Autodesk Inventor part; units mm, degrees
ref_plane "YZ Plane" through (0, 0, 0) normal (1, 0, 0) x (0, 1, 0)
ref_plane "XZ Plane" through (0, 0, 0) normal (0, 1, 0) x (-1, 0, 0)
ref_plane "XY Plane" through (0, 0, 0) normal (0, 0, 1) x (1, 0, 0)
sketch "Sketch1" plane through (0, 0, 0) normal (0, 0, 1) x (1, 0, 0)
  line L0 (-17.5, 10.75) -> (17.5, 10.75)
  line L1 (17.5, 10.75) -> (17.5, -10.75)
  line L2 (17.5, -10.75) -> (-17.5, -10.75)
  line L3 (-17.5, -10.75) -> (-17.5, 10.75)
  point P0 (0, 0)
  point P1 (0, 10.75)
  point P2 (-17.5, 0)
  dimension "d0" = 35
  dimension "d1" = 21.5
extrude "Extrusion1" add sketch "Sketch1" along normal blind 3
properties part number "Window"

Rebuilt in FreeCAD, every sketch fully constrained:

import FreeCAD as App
import Part
import Sketcher
Q = App.Units.Quantity

doc = App.newDocument("Part")
body = doc.addObject("PartDesign::Body", "Body")

sketch1 = doc.addObject("Sketcher::SketchObject", "Sketch")
body.addObject(sketch1)
sketch1.AttachmentSupport = (doc.XY_Plane, [""])
sketch1.MapMode = "FlatFace"
sketch1.addGeometry(Part.LineSegment(App.Vector(18, 11, 0), App.Vector(-18, 11, 0)), False)
sketch1.addGeometry(Part.LineSegment(App.Vector(-18, 11, 0), App.Vector(-18, -11, 0)), False)
sketch1.addGeometry(Part.LineSegment(App.Vector(-18, -11, 0), App.Vector(18, -11, 0)), False)
sketch1.addGeometry(Part.LineSegment(App.Vector(18, -11, 0), App.Vector(18, 11, 0)), False)
sketch1.addConstraint(Sketcher.Constraint("Coincident", 0, 2, 1, 1))
sketch1.addConstraint(Sketcher.Constraint("Coincident", 1, 2, 2, 1))
sketch1.addConstraint(Sketcher.Constraint("Coincident", 2, 2, 3, 1))
sketch1.addConstraint(Sketcher.Constraint("Coincident", 3, 2, 0, 1))
sketch1.addConstraint(Sketcher.Constraint("Horizontal", 0))
sketch1.addConstraint(Sketcher.Constraint("Vertical", 1))
sketch1.addConstraint(Sketcher.Constraint("Horizontal", 2))
sketch1.addConstraint(Sketcher.Constraint("Vertical", 3))
sketch1.addConstraint(Sketcher.Constraint("Symmetric", 0, 2, 2, 2, -1, 1))
sketch1.addConstraint(Sketcher.Constraint("DistanceX", 0, 2, 0, 1, Q("35 mm")))
sketch1.addConstraint(Sketcher.Constraint("DistanceY", 1, 2, 1, 1, Q("21.5 mm")))
pad1 = doc.addObject("PartDesign::Pad", "Pad")
body.addObject(pad1)
pad1.Profile = sketch1
pad1.Length = 3

doc.recompute()
